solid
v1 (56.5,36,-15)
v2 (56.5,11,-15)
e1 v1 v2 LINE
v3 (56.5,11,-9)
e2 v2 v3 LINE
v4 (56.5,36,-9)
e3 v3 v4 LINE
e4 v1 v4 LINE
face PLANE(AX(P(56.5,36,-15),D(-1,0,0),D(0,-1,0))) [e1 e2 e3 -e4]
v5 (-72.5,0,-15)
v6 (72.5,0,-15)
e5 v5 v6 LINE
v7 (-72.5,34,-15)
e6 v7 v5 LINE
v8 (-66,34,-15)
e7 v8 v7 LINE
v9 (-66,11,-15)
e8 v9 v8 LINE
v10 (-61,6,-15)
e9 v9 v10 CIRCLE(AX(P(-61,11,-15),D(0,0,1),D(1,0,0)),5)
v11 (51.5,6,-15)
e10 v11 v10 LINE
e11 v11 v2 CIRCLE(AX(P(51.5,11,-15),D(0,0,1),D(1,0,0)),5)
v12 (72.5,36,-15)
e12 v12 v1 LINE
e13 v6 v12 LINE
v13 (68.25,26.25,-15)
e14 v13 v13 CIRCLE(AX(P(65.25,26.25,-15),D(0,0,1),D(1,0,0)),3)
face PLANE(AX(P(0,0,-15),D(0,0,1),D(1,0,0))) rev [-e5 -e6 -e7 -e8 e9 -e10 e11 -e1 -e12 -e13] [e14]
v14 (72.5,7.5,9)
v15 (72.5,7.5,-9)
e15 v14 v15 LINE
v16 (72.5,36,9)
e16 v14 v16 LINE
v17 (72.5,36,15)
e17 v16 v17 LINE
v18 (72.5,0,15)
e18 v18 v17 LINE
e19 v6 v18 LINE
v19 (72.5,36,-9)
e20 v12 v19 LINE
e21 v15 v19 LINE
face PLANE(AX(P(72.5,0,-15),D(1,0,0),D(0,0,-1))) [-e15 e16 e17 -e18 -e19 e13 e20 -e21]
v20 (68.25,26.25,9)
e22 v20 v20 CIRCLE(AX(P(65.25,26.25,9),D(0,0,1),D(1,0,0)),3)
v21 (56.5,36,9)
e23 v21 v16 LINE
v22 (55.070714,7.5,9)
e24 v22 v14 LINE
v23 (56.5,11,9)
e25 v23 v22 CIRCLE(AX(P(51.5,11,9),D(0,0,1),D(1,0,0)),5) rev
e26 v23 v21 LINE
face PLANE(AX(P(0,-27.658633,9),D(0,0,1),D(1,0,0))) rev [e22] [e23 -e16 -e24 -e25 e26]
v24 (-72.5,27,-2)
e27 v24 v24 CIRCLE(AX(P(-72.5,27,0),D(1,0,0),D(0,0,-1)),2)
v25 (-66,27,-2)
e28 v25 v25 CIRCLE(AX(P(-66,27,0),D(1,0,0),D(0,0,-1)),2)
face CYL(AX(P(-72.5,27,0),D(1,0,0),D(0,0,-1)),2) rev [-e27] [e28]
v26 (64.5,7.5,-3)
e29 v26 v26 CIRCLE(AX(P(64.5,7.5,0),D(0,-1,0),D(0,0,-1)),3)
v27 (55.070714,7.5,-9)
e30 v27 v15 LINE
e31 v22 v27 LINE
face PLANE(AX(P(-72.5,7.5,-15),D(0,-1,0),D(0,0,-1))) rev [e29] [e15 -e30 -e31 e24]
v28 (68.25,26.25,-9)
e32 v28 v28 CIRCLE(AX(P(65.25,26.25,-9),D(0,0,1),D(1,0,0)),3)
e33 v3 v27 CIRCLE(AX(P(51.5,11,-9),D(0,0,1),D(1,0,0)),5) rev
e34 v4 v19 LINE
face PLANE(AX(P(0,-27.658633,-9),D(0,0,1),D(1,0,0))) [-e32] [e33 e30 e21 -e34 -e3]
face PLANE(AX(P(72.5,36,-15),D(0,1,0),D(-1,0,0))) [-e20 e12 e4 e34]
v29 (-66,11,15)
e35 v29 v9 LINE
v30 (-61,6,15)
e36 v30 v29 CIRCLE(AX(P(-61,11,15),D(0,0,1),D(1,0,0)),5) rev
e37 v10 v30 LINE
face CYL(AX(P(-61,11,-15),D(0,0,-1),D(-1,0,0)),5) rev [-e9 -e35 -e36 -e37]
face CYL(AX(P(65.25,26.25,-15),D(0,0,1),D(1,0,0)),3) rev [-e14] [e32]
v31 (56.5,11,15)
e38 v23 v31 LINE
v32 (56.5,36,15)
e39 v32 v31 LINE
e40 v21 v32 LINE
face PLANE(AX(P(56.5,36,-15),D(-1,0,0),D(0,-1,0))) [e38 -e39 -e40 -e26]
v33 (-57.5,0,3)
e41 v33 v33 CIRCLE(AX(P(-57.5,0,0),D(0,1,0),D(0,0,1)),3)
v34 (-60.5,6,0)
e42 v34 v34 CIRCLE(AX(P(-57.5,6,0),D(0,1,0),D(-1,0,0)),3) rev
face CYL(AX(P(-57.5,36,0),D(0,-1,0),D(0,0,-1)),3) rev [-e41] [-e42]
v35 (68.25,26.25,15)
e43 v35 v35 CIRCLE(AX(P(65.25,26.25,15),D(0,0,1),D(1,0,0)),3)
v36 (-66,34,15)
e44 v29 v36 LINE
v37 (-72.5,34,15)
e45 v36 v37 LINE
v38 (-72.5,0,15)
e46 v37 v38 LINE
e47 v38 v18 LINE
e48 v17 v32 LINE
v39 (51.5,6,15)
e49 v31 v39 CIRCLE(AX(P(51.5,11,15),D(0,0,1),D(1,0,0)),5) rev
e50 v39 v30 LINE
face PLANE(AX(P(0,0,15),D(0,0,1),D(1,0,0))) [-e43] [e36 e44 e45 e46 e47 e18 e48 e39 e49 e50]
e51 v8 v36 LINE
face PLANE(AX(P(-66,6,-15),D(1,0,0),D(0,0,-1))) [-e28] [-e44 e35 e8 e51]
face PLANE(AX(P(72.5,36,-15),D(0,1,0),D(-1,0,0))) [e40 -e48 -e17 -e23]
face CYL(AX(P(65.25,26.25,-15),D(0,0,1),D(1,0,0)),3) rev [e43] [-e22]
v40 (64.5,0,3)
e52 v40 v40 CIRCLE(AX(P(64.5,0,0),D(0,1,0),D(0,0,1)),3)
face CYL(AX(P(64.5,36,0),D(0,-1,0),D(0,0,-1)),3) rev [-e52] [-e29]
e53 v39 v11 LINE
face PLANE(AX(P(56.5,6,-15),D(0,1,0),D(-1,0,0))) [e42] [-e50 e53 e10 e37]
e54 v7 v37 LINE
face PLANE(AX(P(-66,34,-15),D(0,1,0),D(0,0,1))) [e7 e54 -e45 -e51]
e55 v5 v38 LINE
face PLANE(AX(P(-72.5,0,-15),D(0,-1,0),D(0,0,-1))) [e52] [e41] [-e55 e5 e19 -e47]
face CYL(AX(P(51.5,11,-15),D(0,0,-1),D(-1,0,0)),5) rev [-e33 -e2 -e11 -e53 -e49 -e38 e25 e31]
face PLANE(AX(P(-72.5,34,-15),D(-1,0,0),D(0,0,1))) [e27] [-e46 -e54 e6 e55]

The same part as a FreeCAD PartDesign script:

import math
import FreeCAD as App
import Part
import Sketcher
from FreeCAD import Vector


def edges_at(feature, points):
    """Names of the edges that pass closest to the given points."""
    edges = feature.Shape.Edges
    near = lambda p: min(range(len(edges)), key=lambda i: edges[i].distToShape(Part.Vertex(*p))[0])
    return sorted({f"Edge{near(p) + 1}" for p in points})

doc = App.newDocument("Part")
params = doc.addObject("Spreadsheet::Sheet", "Params")
for row, (alias, value) in enumerate([
    ("sketch1_width", "145 mm"),
    ("sketch1_width2", "16 mm"),
    ("sketch1_height", "34 mm"),
    ("sketch1_height2", "36 mm"),
    ("sketch1_height3", "30 mm"),
    ("pad1_length", "15 mm"),
    ("pad1_length2", "15 mm"),
    ("sketch2_diameter", "6 mm"),
    ("fillet_radius", "5 mm"),
    ("sketch3_radius", "3 mm"),
    ("sketch3_width", "21 mm"),
    ("sketch3_height", "18 mm"),
    ("pocket2_length", "28.5 mm"),
    ("sketch4_diameter", "6 mm"),
    ("sketch5_diameter", "4 mm"),
], start=1):
    params.set(f"A{row}", alias)
    params.set(f"B{row}", "=" + value)
    params.setAlias(f"B{row}", alias)

body = doc.addObject("PartDesign::Body", "Body")

# Sketch on XY plane
sketch1 = body.newObject("Sketcher::SketchObject", "Sketch")
sketch1.AttachmentSupport = (doc.getObject("XY_Plane"), [""])
sketch1.MapMode = "FlatFace"
sketch1.addGeometry([
    Part.LineSegment(Vector(-72, 34, 0), Vector(-72, 0, 0)),  # 0
    Part.LineSegment(Vector(-72, 0, 0), Vector(72, 0, 0)),  # 1
    Part.LineSegment(Vector(72, 0, 0), Vector(72, 36, 0)),  # 2
    Part.LineSegment(Vector(72, 36, 0), Vector(56, 36, 0)),  # 3
    Part.LineSegment(Vector(56, 36, 0), Vector(56, 6, 0)),  # 4
    Part.LineSegment(Vector(56, 6, 0), Vector(-66, 6, 0)),  # 5
    Part.LineSegment(Vector(-66, 6, 0), Vector(-66, 34, 0)),  # 6
    Part.LineSegment(Vector(-66, 34, 0), Vector(-72, 34, 0)),  # 7
], False)
sketch1.addConstraint([
    Sketcher.Constraint("Coincident", 0, 2, 1, 1),
    Sketcher.Constraint("Coincident", 1, 2, 2, 1),
    Sketcher.Constraint("Coincident", 2, 2, 3, 1),
    Sketcher.Constraint("Coincident", 3, 2, 4, 1),
    Sketcher.Constraint("Coincident", 4, 2, 5, 1),
    Sketcher.Constraint("Coincident", 5, 2, 6, 1),
    Sketcher.Constraint("Coincident", 6, 2, 7, 1),
    Sketcher.Constraint("Coincident", 7, 2, 0, 1),
    Sketcher.Constraint("Vertical", 0),
    Sketcher.Constraint("Horizontal", 1),
    Sketcher.Constraint("Vertical", 2),
    Sketcher.Constraint("Horizontal", 3),
    Sketcher.Constraint("Vertical", 4),
    Sketcher.Constraint("Horizontal", 5),
    Sketcher.Constraint("Vertical", 6),
    Sketcher.Constraint("Horizontal", 7),
    Sketcher.Constraint("Symmetric", 0, 2, 1, 2, -1, 1),
    Sketcher.Constraint("DistanceX", 1, 1, 1, 2, 145.0),
    Sketcher.Constraint("DistanceX", 3, 2, 3, 1, 16.0),
    Sketcher.Constraint("DistanceY", 0, 2, 0, 1, 34.0),
    Sketcher.Constraint("DistanceY", 2, 1, 2, 2, 36.0),
    Sketcher.Constraint("DistanceY", 4, 2, 4, 1, 30.0),
    Sketcher.Constraint("DistanceX", 5, 2, 5, 1, 122.5),
])
sketch1.setExpression("Constraints[17]", "Params.sketch1_width")
sketch1.setExpression("Constraints[18]", "Params.sketch1_width2")
sketch1.setExpression("Constraints[19]", "Params.sketch1_height")
sketch1.setExpression("Constraints[20]", "Params.sketch1_height2")
sketch1.setExpression("Constraints[21]", "Params.sketch1_height3")
pad1 = body.newObject("PartDesign::Pad", "Pad")
pad1.Profile = sketch1
pad1.Type = "TwoLengths"
pad1.setExpression("Length", "Params.pad1_length")
pad1.setExpression("Length2", "Params.pad1_length2")

# Sketch on XZ plane
sketch2 = body.newObject("Sketcher::SketchObject", "Sketch001")
sketch2.AttachmentSupport = (doc.getObject("XZ_Plane"), [""])
sketch2.MapMode = "FlatFace"
sketch2.addGeometry([
    Part.Circle(Vector(-57.5, 0, 0), Vector(0, 0, 1), 3),
    Part.Circle(Vector(64.5, 0, 0), Vector(0, 0, 1), 3),
], False)
sketch2.addConstraint([
    Sketcher.Constraint("Equal", 0, 1),
    Sketcher.Constraint("PointOnObject", 0, 3, -1),
    Sketcher.Constraint("PointOnObject", 1, 3, -1),
    Sketcher.Constraint("Diameter", 0, 6.0),
    Sketcher.Constraint("DistanceX", 0, 3, 1, 3, 122.0),
    Sketcher.Constraint("DistanceX", 0, 3, -1, 1, 57.5),
])
sketch2.setExpression("Constraints[3]", "Params.sketch2_diameter")
pocket1 = body.newObject("PartDesign::Pocket", "Pocket")
pocket1.Profile = sketch2
pocket1.Type = "ThroughAll"
doc.recompute()

fillet = body.newObject("PartDesign::Fillet", "Fillet")
fillet.Base = (pocket1, edges_at(pocket1, [(-66, 6, 0), (56.5, 6, 0)]))
fillet.setExpression("Radius", "Params.fillet_radius")

# Sketch on XZ plane
sketch3 = body.newObject("Sketcher::SketchObject", "Sketch002")
sketch3.AttachmentSupport = (doc.getObject("XZ_Plane"), [""])
sketch3.MapMode = "FlatFace"
sketch3.AttachmentOffset = App.Placement(Vector(0, 0, -7.5), App.Rotation())
sketch3.addGeometry([
    Part.LineSegment(Vector(72.5, -9, 0), Vector(51.5, -9, 0)),  # 0
    Part.LineSegment(Vector(51.5, -9, 0), Vector(51.5, 9, 0)),  # 1
    Part.LineSegment(Vector(51.5, 9, 0), Vector(72.5, 9, 0)),  # 2
    Part.LineSegment(Vector(72.5, 9, 0), Vector(72.5, -9, 0)),  # 3
    Part.ArcOfCircle(Part.Circle(Vector(64.5, 0, 0), Vector(0, 0, 1), 3), math.radians(132), math.radians(312)),  # 4
    Part.ArcOfCircle(Part.Circle(Vector(64.5, 0, 0), Vector(0, 0, 1), 3), math.radians(-48), math.radians(0)),  # 5
    Part.ArcOfCircle(Part.Circle(Vector(64.5, 0, 0), Vector(0, 0, 1), 3), math.radians(0), math.radians(132)),  # 6
], False)
sketch3.addConstraint([
    Sketcher.Constraint("Coincident", 0, 2, 1, 1),
    Sketcher.Constraint("Coincident", 1, 2, 2, 1),
    Sketcher.Constraint("Coincident", 2, 2, 3, 1),
    Sketcher.Constraint("Coincident", 3, 2, 0, 1),
    Sketcher.Constraint("Tangent", 4, 2, 5, 1),
    Sketcher.Constraint("Tangent", 5, 2, 6, 1),
    Sketcher.Constraint("Tangent", 6, 2, 4, 1),
    Sketcher.Constraint("Horizontal", 0),
    Sketcher.Constraint("Vertical", 1),
    Sketcher.Constraint("Horizontal", 2),
    Sketcher.Constraint("Vertical", 3),
    Sketcher.Constraint("PointOnObject", 4, 3, -1),
    Sketcher.Constraint("PointOnObject", 5, 2, -1),
    Sketcher.Constraint("Radius", 4, 3.0),
    Sketcher.Constraint("DistanceX", 0, 2, 0, 1, 21.0),
    Sketcher.Constraint("DistanceY", 1, 1, 1, 2, 18.0),
    Sketcher.Constraint("DistanceY", 0, 2, -1, 1, 9.0),
    Sketcher.Constraint("DistanceX", 0, 2, 5, 3, 13.0),
    Sketcher.Constraint("DistanceX", -1, 1, 4, 3, 64.5),
    Sketcher.Constraint("DistanceX", -1, 1, 4, 2, 66.493092),
    Sketcher.Constraint("DistanceX", -1, 1, 6, 2, 62.506908),
])
sketch3.setExpression("Constraints[13]", "Params.sketch3_radius")
sketch3.setExpression("Constraints[14]", "Params.sketch3_width")
sketch3.setExpression("Constraints[15]", "Params.sketch3_height")
pocket2 = body.newObject("PartDesign::Pocket", "Pocket001")
pocket2.Profile = sketch3
pocket2.setExpression("Length", "Params.pocket2_length")

# Sketch on XY plane
sketch4 = body.newObject("Sketcher::SketchObject", "Sketch003")
sketch4.AttachmentSupport = (doc.getObject("XY_Plane"), [""])
sketch4.MapMode = "FlatFace"
sketch4.addGeometry(Part.Circle(Vector(65.2, 26.2, 0), Vector(0, 0, 1), 3), False)
sketch4.addConstraint([
    Sketcher.Constraint("Diameter", 0, 6.0),
    Sketcher.Constraint("DistanceX", -1, 1, 0, 3, 65.25),
    Sketcher.Constraint("DistanceY", -1, 1, 0, 3, 26.25),
])
sketch4.setExpression("Constraints[0]", "Params.sketch4_diameter")
pocket3 = body.newObject("PartDesign::Pocket", "Pocket002")
pocket3.Profile = sketch4
pocket3.Type = "ThroughAll"
pocket3.Midplane = True

# Sketch on YZ plane
sketch5 = body.newObject("Sketcher::SketchObject", "Sketch004")
sketch5.AttachmentSupport = (doc.getObject("YZ_Plane"), [""])
sketch5.MapMode = "FlatFace"
sketch5.addGeometry(Part.Circle(Vector(27, 0, 0), Vector(0, 0, 1), 2), False)
sketch5.addConstraint([
    Sketcher.Constraint("PointOnObject", 0, 3, -1),
    Sketcher.Constraint("Diameter", 0, 4.0),
    Sketcher.Constraint("DistanceX", -1, 1, 0, 3, 27.0),
])
sketch5.setExpression("Constraints[1]", "Params.sketch5_diameter")
pocket4 = body.newObject("PartDesign::Pocket", "Pocket003")
pocket4.Profile = sketch5
pocket4.Type = "ThroughAll"

doc.recompute()
